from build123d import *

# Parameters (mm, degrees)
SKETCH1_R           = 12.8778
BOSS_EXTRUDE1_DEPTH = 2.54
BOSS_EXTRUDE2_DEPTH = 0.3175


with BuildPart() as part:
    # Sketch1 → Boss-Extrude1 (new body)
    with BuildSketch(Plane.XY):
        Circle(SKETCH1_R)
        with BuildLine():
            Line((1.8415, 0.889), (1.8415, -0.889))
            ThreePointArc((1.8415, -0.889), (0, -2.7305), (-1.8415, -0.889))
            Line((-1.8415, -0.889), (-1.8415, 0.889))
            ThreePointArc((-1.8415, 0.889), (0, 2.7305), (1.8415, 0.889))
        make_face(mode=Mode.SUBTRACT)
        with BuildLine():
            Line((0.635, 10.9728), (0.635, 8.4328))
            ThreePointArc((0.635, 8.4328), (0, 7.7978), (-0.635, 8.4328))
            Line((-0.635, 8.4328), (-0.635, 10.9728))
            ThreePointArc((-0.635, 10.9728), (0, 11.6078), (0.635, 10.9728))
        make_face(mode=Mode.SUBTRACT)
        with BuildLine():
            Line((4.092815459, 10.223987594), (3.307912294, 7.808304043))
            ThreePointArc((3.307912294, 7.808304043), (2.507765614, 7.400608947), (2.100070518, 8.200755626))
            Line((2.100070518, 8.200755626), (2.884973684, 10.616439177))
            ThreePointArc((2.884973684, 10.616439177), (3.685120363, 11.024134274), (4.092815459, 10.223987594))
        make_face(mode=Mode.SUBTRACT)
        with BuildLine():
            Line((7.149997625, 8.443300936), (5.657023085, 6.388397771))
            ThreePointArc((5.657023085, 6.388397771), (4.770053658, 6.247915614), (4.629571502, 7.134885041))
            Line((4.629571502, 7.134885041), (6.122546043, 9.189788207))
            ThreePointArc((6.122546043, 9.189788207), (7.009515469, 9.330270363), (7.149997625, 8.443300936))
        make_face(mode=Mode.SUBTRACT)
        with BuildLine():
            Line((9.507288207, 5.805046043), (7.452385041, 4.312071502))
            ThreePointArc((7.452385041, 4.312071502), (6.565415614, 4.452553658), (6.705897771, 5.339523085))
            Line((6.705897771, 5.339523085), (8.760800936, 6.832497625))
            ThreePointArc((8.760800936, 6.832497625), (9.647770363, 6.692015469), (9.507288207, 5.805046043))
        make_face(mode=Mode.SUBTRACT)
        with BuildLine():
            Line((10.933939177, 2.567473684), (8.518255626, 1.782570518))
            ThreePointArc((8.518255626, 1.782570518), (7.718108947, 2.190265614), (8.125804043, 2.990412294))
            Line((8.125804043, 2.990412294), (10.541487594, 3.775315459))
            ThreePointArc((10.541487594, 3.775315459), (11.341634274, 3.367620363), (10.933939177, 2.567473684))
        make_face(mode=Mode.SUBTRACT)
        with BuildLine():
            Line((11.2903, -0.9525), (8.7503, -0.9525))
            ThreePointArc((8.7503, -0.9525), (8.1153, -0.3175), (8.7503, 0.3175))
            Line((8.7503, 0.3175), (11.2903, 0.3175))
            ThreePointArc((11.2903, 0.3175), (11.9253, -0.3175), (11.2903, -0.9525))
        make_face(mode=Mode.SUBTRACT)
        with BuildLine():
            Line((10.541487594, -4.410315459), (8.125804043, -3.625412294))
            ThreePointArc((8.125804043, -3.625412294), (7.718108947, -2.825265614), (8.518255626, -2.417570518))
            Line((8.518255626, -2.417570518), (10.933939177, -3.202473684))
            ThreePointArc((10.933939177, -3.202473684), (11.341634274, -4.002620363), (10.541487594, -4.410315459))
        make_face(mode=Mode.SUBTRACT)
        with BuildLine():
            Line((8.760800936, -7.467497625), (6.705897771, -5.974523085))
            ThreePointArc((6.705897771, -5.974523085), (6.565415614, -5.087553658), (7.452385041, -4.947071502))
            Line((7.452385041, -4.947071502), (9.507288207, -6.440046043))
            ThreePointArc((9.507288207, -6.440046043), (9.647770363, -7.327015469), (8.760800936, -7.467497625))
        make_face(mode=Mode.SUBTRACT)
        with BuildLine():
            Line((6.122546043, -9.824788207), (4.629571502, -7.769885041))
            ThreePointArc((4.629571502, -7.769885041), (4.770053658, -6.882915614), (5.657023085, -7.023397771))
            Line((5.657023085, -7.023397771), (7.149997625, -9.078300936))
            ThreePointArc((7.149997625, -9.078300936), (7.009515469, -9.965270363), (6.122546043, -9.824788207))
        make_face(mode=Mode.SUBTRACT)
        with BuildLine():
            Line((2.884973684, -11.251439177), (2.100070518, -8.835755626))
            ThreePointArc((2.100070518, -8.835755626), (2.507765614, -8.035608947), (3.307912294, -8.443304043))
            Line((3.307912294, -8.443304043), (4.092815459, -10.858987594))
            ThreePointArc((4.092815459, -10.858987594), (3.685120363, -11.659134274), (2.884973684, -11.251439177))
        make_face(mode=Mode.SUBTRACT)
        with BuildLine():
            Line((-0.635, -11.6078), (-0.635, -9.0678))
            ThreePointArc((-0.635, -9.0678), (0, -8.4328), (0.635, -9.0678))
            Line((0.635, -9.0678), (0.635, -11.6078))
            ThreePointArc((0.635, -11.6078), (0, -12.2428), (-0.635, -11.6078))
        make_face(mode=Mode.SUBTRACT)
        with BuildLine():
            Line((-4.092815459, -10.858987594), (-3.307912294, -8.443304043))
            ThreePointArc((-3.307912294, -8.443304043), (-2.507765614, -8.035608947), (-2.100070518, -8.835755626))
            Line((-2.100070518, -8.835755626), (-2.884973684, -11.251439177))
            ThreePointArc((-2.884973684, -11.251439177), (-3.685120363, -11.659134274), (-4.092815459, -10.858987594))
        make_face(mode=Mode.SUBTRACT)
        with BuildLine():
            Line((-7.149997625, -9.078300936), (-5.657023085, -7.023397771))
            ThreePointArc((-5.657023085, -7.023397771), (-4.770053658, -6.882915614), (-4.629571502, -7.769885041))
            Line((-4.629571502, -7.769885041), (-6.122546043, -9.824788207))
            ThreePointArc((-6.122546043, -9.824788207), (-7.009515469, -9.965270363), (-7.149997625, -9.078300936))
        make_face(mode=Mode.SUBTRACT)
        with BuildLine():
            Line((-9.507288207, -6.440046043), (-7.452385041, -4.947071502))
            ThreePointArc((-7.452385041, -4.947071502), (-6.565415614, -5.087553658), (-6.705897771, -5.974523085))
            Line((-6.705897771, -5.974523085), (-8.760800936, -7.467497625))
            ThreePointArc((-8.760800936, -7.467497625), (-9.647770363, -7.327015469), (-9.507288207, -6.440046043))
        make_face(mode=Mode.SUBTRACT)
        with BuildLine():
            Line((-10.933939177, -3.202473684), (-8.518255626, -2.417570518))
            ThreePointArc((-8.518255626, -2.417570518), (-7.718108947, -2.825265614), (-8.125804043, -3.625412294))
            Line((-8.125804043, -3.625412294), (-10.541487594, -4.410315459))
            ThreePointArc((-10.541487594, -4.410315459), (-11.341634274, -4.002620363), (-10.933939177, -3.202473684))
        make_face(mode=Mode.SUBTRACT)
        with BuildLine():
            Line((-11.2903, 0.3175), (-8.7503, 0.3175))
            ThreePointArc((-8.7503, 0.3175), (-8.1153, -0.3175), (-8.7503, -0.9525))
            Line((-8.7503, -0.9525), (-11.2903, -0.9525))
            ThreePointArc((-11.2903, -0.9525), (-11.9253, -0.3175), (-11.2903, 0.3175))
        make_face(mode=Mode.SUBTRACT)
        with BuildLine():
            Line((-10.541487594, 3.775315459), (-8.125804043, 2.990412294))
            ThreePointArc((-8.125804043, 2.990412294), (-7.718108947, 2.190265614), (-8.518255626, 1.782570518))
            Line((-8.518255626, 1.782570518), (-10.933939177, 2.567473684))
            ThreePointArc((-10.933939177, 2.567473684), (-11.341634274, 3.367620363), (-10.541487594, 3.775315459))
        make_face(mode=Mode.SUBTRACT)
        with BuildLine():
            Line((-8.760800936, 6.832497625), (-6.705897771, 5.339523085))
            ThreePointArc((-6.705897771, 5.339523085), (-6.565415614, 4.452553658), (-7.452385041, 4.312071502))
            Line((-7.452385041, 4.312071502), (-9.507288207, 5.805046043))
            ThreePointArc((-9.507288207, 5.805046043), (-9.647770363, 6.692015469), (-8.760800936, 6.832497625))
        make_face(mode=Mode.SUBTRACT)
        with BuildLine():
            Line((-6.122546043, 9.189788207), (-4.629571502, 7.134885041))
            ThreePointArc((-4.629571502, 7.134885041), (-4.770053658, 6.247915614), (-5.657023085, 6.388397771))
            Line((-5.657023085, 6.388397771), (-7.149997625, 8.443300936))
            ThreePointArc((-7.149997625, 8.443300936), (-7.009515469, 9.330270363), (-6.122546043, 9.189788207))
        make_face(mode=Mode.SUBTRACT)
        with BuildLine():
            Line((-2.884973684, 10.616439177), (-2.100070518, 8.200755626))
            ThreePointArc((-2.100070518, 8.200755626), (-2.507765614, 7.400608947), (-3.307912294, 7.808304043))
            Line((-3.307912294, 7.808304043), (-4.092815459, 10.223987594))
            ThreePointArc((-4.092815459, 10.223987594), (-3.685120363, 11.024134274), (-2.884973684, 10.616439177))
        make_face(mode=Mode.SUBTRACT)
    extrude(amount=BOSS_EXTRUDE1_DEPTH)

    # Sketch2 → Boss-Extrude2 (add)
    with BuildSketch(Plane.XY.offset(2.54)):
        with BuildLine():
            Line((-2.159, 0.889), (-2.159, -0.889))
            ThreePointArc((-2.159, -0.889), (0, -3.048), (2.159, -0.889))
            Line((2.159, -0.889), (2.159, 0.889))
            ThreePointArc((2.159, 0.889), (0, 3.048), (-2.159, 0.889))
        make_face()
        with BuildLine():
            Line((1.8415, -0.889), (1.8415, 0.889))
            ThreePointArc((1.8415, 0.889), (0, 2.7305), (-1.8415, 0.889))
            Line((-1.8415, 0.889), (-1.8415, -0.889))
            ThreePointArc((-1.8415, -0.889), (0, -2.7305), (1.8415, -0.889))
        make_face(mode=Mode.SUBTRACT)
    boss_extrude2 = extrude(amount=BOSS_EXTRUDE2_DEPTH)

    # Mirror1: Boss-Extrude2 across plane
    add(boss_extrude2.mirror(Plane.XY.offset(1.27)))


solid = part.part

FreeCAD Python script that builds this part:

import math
import FreeCAD as App
import Part
import Sketcher
Q = App.Units.Quantity

doc = App.newDocument("Part")
params = doc.addObject("Spreadsheet::Sheet", "Params")
for row, (alias, value) in enumerate([
    ("sketch1_diameter", "1.014 in"),
    ("sketch1_width", "0.1 in"),
    ("sketch1_radius", "0.025 in"),
    ("sketch1_length", "0.1 in"),
    ("sketch1_height", "0.07 in"),
    ("pad1_length", "0.1 in"),
    ("sketch2_radius", "0.085 in"),
    ("sketch2_height", "0.07 in"),
    ("pad2_length", "0.0125 in"),
], start=1):
    params.set(f"A{row}", alias)
    params.set(f"B{row}", "=" + value)
    params.setAlias(f"B{row}", alias)

body = doc.addObject("PartDesign::Body", "Body")

sketch1 = doc.addObject("Sketcher::SketchObject", "Sketch")
body.addObject(sketch1)
sketch1.AttachmentSupport = (doc.XY_Plane, [""])
sketch1.MapMode = "FlatFace"
sketch1.addGeometry(Part.Circle(App.Vector(0, 0, 0), App.Vector(0, 0, 1), 12.9), False)
sketch1.addGeometry(Part.ArcOfCircle(Part.Circle(App.Vector(-3.5, -11.1, 0), App.Vector(0, 0, 1), 0.6), math.radians(162), math.radians(342)), False)
sketch1.addGeometry(Part.LineSegment(App.Vector(-4.1, -10.9, 0), App.Vector(-3.3, -8.4, 0)), False)
sketch1.addGeometry(Part.ArcOfCircle(Part.Circle(App.Vector(-2.7, -8.6, 0), App.Vector(0, 0, 1), 0.6), math.radians(-18), math.radians(162)), False)
sketch1.addGeometry(Part.LineSegment(App.Vector(-2.1, -8.8, 0), App.Vector(-2.9, -11.3, 0)), False)
sketch1.addGeometry(Part.ArcOfCircle(Part.Circle(App.Vector(0, -11.6, 0), App.Vector(0, 0, 1), 0.6), math.radians(180), math.radians(360)), False)
sketch1.addGeometry(Part.LineSegment(App.Vector(-0.6, -11.6, 0), App.Vector(-0.6, -9.1, 0)), False)
sketch1.addGeometry(Part.ArcOfCircle(Part.Circle(App.Vector(0, -9.1, 0), App.Vector(0, 0, 1), 0.6), math.radians(0), math.radians(180)), False)
sketch1.addGeometry(Part.LineSegment(App.Vector(0.6, -9.1, 0), App.Vector(0.6, -11.6, 0)), False)
sketch1.addGeometry(Part.ArcOfCircle(Part.Circle(App.Vector(-6.6, -9.5, 0), App.Vector(0, 0, 1), 0.6), math.radians(144), math.radians(324)), False)
sketch1.addGeometry(Part.LineSegment(App.Vector(-7.1, -9.1, 0), App.Vector(-5.7, -7, 0)), False)
sketch1.addGeometry(Part.ArcOfCircle(Part.Circle(App.Vector(-5.1, -7.4, 0), App.Vector(0, 0, 1), 0.6), math.radians(-36), math.radians(144)), False)
sketch1.addGeometry(Part.LineSegment(App.Vector(-4.6, -7.8, 0), App.Vector(-6.1, -9.8, 0)), False)
sketch1.addGeometry(Part.ArcOfCircle(Part.Circle(App.Vector(-10.7, -3.8, 0), App.Vector(0, 0, 1), 0.6), math.radians(108), math.radians(288)), False)
sketch1.addGeometry(Part.LineSegment(App.Vector(-10.9, -3.2, 0), App.Vector(-8.5, -2.4, 0)), False)
sketch1.addGeometry(Part.ArcOfCircle(Part.Circle(App.Vector(-8.3, -3, 0), App.Vector(0, 0, 1), 0.6), math.radians(-72), math.radians(108)), False)
sketch1.addGeometry(Part.LineSegment(App.Vector(-8.1, -3.6, 0), App.Vector(-10.5, -4.4, 0)), False)
sketch1.addGeometry(Part.ArcOfCircle(Part.Circle(App.Vector(-9.1, -7, 0), App.Vector(0, 0, 1), 0.6), math.radians(126), math.radians(306)), False)
sketch1.addGeometry(Part.LineSegment(App.Vector(-9.5, -6.4, 0), App.Vector(-7.5, -4.9, 0)), False)
sketch1.addGeometry(Part.ArcOfCircle(Part.Circle(App.Vector(-7.1, -5.5, 0), App.Vector(0, 0, 1), 0.6), math.radians(-54), math.radians(126)), False)
sketch1.addGeometry(Part.LineSegment(App.Vector(-6.7, -6, 0), App.Vector(-8.8, -7.5, 0)), False)
sketch1.addGeometry(Part.ArcOfCircle(Part.Circle(App.Vector(3.5, -11.1, 0), App.Vector(0, 0, 1), 0.6), math.radians(-162), math.radians(18)), False)
sketch1.addGeometry(Part.LineSegment(App.Vector(2.9, -11.3, 0), App.Vector(2.1, -8.8, 0)), False)
sketch1.addGeometry(Part.ArcOfCircle(Part.Circle(App.Vector(2.7, -8.6, 0), App.Vector(0, 0, 1), 0.6), math.radians(18), math.radians(198)), False)
sketch1.addGeometry(Part.LineSegment(App.Vector(3.3, -8.4, 0), App.Vector(4.1, -10.9, 0)), False)
sketch1.addGeometry(Part.ArcOfCircle(Part.Circle(App.Vector(6.6, -9.5, 0), App.Vector(0, 0, 1), 0.6), math.radians(-144), math.radians(36)), False)
sketch1.addGeometry(Part.LineSegment(App.Vector(6.1, -9.8, 0), App.Vector(4.6, -7.8, 0)), False)
sketch1.addGeometry(Part.ArcOfCircle(Part.Circle(App.Vector(5.1, -7.4, 0), App.Vector(0, 0, 1), 0.6), math.radians(36), math.radians(216)), False)
sketch1.addGeometry(Part.LineSegment(App.Vector(5.7, -7, 0), App.Vector(7.1, -9.1, 0)), False)
sketch1.addGeometry(Part.ArcOfCircle(Part.Circle(App.Vector(9.1, -7, 0), App.Vector(0, 0, 1), 0.6), math.radians(-126), math.radians(54)), False)
sketch1.addGeometry(Part.LineSegment(App.Vector(8.8, -7.5, 0), App.Vector(6.7, -6, 0)), False)
sketch1.addGeometry(Part.ArcOfCircle(Part.Circle(App.Vector(7.1, -5.5, 0), App.Vector(0, 0, 1), 0.6), math.radians(54), math.radians(234)), False)
sketch1.addGeometry(Part.LineSegment(App.Vector(7.5, -4.9, 0), App.Vector(9.5, -6.4, 0)), False)
sketch1.addGeometry(Part.ArcOfCircle(Part.Circle(App.Vector(10.7, -3.8, 0), App.Vector(0, 0, 1), 0.6), math.radians(-108), math.radians(72)), False)
sketch1.addGeometry(Part.LineSegment(App.Vector(10.5, -4.4, 0), App.Vector(8.1, -3.6, 0)), False)
sketch1.addGeometry(Part.ArcOfCircle(Part.Circle(App.Vector(8.3, -3, 0), App.Vector(0, 0, 1), 0.6), math.radians(72), math.radians(252)), False)
sketch1.addGeometry(Part.LineSegment(App.Vector(8.5, -2.4, 0), App.Vector(10.9, -3.2, 0)), False)
sketch1.addGeometry(Part.ArcOfCircle(Part.Circle(App.Vector(-11.3, -0.3, 0), App.Vector(0, 0, 1), 0.6), math.radians(90), math.radians(270)), False)
sketch1.addGeometry(Part.LineSegment(App.Vector(-11.3, 0.3, 0), App.Vector(-8.8, 0.3, 0)), False)
sketch1.addGeometry(Part.ArcOfCircle(Part.Circle(App.Vector(-8.8, -0.3, 0), App.Vector(0, 0, 1), 0.6), math.radians(-90), math.radians(90)), False)
sketch1.addGeometry(Part.LineSegment(App.Vector(-8.8, -1, 0), App.Vector(-11.3, -1, 0)), False)
sketch1.addGeometry(Part.ArcOfCircle(Part.Circle(App.Vector(-10.7, 3.2, 0), App.Vector(0, 0, 1), 0.6), math.radians(72), math.radians(252)), False)
sketch1.addGeometry(Part.LineSegment(App.Vector(-10.5, 3.8, 0), App.Vector(-8.1, 3, 0)), False)
sketch1.addGeometry(Part.ArcOfCircle(Part.Circle(App.Vector(-8.3, 2.4, 0), App.Vector(0, 0, 1), 0.6), math.radians(-108), math.radians(72)), False)
sketch1.addGeometry(Part.LineSegment(App.Vector(-8.5, 1.8, 0), App.Vector(-10.9, 2.6, 0)), False)
sketch1.addGeometry(Part.ArcOfCircle(Part.Circle(App.Vector(-9.1, 6.3, 0), App.Vector(0, 0, 1), 0.6), math.radians(54), math.radians(234)), False)
sketch1.addGeometry(Part.LineSegment(App.Vector(-8.8, 6.8, 0), App.Vector(-6.7, 5.3, 0)), False)
sketch1.addGeometry(Part.ArcOfCircle(Part.Circle(App.Vector(-7.1, 4.8, 0), App.Vector(0, 0, 1), 0.6), math.radians(-126), math.radians(54)), False)
sketch1.addGeometry(Part.LineSegment(App.Vector(-7.5, 4.3, 0), App.Vector(-9.5, 5.8, 0)), False)
sketch1.addGeometry(Part.ArcOfCircle(Part.Circle(App.Vector(0, 0.9, 0), App.Vector(0, 0, 1), 1.8), math.radians(0), math.radians(180)), False)
sketch1.addGeometry(Part.LineSegment(App.Vector(1.8, 0.9, 0), App.Vector(1.8, -0.9, 0)), False)
sketch1.addGeometry(Part.ArcOfCircle(Part.Circle(App.Vector(0, -0.9, 0), App.Vector(0, 0, 1), 1.8), math.radians(180), math.radians(360)), False)
sketch1.addGeometry(Part.LineSegment(App.Vector(-1.8, -0.9, 0), App.Vector(-1.8, 0.9, 0)), False)
sketch1.addGeometry(Part.ArcOfCircle(Part.Circle(App.Vector(-6.6, 8.8, 0), App.Vector(0, 0, 1), 0.6), math.radians(36), math.radians(216)), False)
sketch1.addGeometry(Part.LineSegment(App.Vector(-6.1, 9.2, 0), App.Vector(-4.6, 7.1, 0)), False)
sketch1.addGeometry(Part.ArcOfCircle(Part.Circle(App.Vector(-5.1, 6.8, 0), App.Vector(0, 0, 1), 0.6), math.radians(-144), math.radians(36)), False)
sketch1.addGeometry(Part.LineSegment(App.Vector(-5.7, 6.4, 0), App.Vector(-7.1, 8.4, 0)), False)
sketch1.addGeometry(Part.ArcOfCircle(Part.Circle(App.Vector(-3.5, 10.4, 0), App.Vector(0, 0, 1), 0.6), math.radians(18), math.radians(198)), False)
sketch1.addGeometry(Part.LineSegment(App.Vector(-2.9, 10.6, 0), App.Vector(-2.1, 8.2, 0)), False)
sketch1.addGeometry(Part.ArcOfCircle(Part.Circle(App.Vector(-2.7, 8, 0), App.Vector(0, 0, 1), 0.6), math.radians(-162), math.radians(18)), False)
sketch1.addGeometry(Part.LineSegment(App.Vector(-3.3, 7.8, 0), App.Vector(-4.1, 10.2, 0)), False)
sketch1.addGeometry(Part.ArcOfCircle(Part.Circle(App.Vector(0, 11, 0), App.Vector(0, 0, 1), 0.6), math.radians(0), math.radians(180)), False)
sketch1.addGeometry(Part.LineSegment(App.Vector(0.6, 11, 0), App.Vector(0.6, 8.4, 0)), False)
sketch1.addGeometry(Part.ArcOfCircle(Part.Circle(App.Vector(0, 8.4, 0), App.Vector(0, 0, 1), 0.6), math.radians(180), math.radians(360)), False)
sketch1.addGeometry(Part.LineSegment(App.Vector(-0.6, 8.4, 0), App.Vector(-0.6, 11, 0)), False)
sketch1.addGeometry(Part.ArcOfCircle(Part.Circle(App.Vector(11.3, -0.3, 0), App.Vector(0, 0, 1), 0.6), math.radians(-90), math.radians(90)), False)
sketch1.addGeometry(Part.LineSegment(App.Vector(11.3, -1, 0), App.Vector(8.8, -1, 0)), False)
sketch1.addGeometry(Part.ArcOfCircle(Part.Circle(App.Vector(8.8, -0.3, 0), App.Vector(0, 0, 1), 0.6), math.radians(90), math.radians(270)), False)
sketch1.addGeometry(Part.LineSegment(App.Vector(8.8, 0.3, 0), App.Vector(11.3, 0.3, 0)), False)
sketch1.addGeometry(Part.ArcOfCircle(Part.Circle(App.Vector(9.1, 6.3, 0), App.Vector(0, 0, 1), 0.6), math.radians(-54), math.radians(126)), False)
sketch1.addGeometry(Part.LineSegment(App.Vector(9.5, 5.8, 0), App.Vector(7.5, 4.3, 0)), False)
sketch1.addGeometry(Part.ArcOfCircle(Part.Circle(App.Vector(7.1, 4.8, 0), App.Vector(0, 0, 1), 0.6), math.radians(126), math.radians(306)), False)
sketch1.addGeometry(Part.LineSegment(App.Vector(6.7, 5.3, 0), App.Vector(8.8, 6.8, 0)), False)
sketch1.addGeometry(Part.ArcOfCircle(Part.Circle(App.Vector(10.7, 3.2, 0), App.Vector(0, 0, 1), 0.6), math.radians(-72), math.radians(108)), False)
sketch1.addGeometry(Part.LineSegment(App.Vector(10.9, 2.6, 0), App.Vector(8.5, 1.8, 0)), False)
sketch1.addGeometry(Part.ArcOfCircle(Part.Circle(App.Vector(8.3, 2.4, 0), App.Vector(0, 0, 1), 0.6), math.radians(108), math.radians(288)), False)
sketch1.addGeometry(Part.LineSegment(App.Vector(8.1, 3, 0), App.Vector(10.5, 3.8, 0)), False)
sketch1.addGeometry(Part.ArcOfCircle(Part.Circle(App.Vector(6.6, 8.8, 0), App.Vector(0, 0, 1), 0.6), math.radians(-36), math.radians(144)), False)
sketch1.addGeometry(Part.LineSegment(App.Vector(7.1, 8.4, 0), App.Vector(5.7, 6.4, 0)), False)
sketch1.addGeometry(Part.ArcOfCircle(Part.Circle(App.Vector(5.1, 6.8, 0), App.Vector(0, 0, 1), 0.6), math.radians(144), math.radians(324)), False)
sketch1.addGeometry(Part.LineSegment(App.Vector(4.6, 7.1, 0), App.Vector(6.1, 9.2, 0)), False)
sketch1.addGeometry(Part.ArcOfCircle(Part.Circle(App.Vector(3.5, 10.4, 0), App.Vector(0, 0, 1), 0.6), math.radians(-18), math.radians(162)), False)
sketch1.addGeometry(Part.LineSegment(App.Vector(4.1, 10.2, 0), App.Vector(3.3, 7.8, 0)), False)
sketch1.addGeometry(Part.ArcOfCircle(Part.Circle(App.Vector(2.7, 8, 0), App.Vector(0, 0, 1), 0.6), math.radians(162), math.radians(342)), False)
sketch1.addGeometry(Part.LineSegment(App.Vector(2.1, 8.2, 0), App.Vector(2.9, 10.6, 0)), False)
sketch1.addConstraint(Sketcher.Constraint("Tangent", 1, 1, 2, 1))
sketch1.addConstraint(Sketcher.Constraint("Tangent", 2, 2, 3, 2))
sketch1.addConstraint(Sketcher.Constraint("Tangent", 3, 1, 4, 1))
sketch1.addConstraint(Sketcher.Constraint("Tangent", 4, 2, 1, 2))
sketch1.addConstraint(Sketcher.Constraint("Tangent", 5, 1, 6, 1))
sketch1.addConstraint(Sketcher.Constraint("Tangent", 6, 2, 7, 2))
sketch1.addConstraint(Sketcher.Constraint("Tangent", 7, 1, 8, 1))
sketch1.addConstraint(Sketcher.Constraint("Tangent", 8, 2, 5, 2))
sketch1.addConstraint(Sketcher.Constraint("Tangent", 9, 1, 10, 1))
sketch1.addConstraint(Sketcher.Constraint("Tangent", 10, 2, 11, 2))
sketch1.addConstraint(Sketcher.Constraint("Tangent", 11, 1, 12, 1))
sketch1.addConstraint(Sketcher.Constraint("Tangent", 12, 2, 9, 2))
sketch1.addConstraint(Sketcher.Constraint("Tangent", 13, 1, 14, 1))
sketch1.addConstraint(Sketcher.Constraint("Tangent", 14, 2, 15, 2))
sketch1.addConstraint(Sketcher.Constraint("Tangent", 15, 1, 16, 1))
sketch1.addConstraint(Sketcher.Constraint("Tangent", 16, 2, 13, 2))
sketch1.addConstraint(Sketcher.Constraint("Tangent", 17, 1, 18, 1))
sketch1.addConstraint(Sketcher.Constraint("Tangent", 18, 2, 19, 2))
sketch1.addConstraint(Sketcher.Constraint("Tangent", 19, 1, 20, 1))
sketch1.addConstraint(Sketcher.Constraint("Tangent", 20, 2, 17, 2))
sketch1.addConstraint(Sketcher.Constraint("Tangent", 21, 1, 22, 1))
sketch1.addConstraint(Sketcher.Constraint("Tangent", 22, 2, 23, 2))
sketch1.addConstraint(Sketcher.Constraint("Tangent", 23, 1, 24, 1))
sketch1.addConstraint(Sketcher.Constraint("Tangent", 24, 2, 21, 2))
sketch1.addConstraint(Sketcher.Constraint("Tangent", 25, 1, 26, 1))
sketch1.addConstraint(Sketcher.Constraint("Tangent", 26, 2, 27, 2))
sketch1.addConstraint(Sketcher.Constraint("Tangent", 27, 1, 28, 1))
sketch1.addConstraint(Sketcher.Constraint("Tangent", 28, 2, 25, 2))
sketch1.addConstraint(Sketcher.Constraint("Tangent", 29, 1, 30, 1))
sketch1.addConstraint(Sketcher.Constraint("Tangent", 30, 2, 31, 2))
sketch1.addConstraint(Sketcher.Constraint("Tangent", 31, 1, 32, 1))
sketch1.addConstraint(Sketcher.Constraint("Tangent", 32, 2, 29, 2))
sketch1.addConstraint(Sketcher.Constraint("Tangent", 33, 1, 34, 1))
sketch1.addConstraint(Sketcher.Constraint("Tangent", 34, 2, 35, 2))
sketch1.addConstraint(Sketcher.Constraint("Tangent", 35, 1, 36, 1))
sketch1.addConstraint(Sketcher.Constraint("Tangent", 36, 2, 33, 2))
sketch1.addConstraint(Sketcher.Constraint("Tangent", 37, 1, 38, 1))
sketch1.addConstraint(Sketcher.Constraint("Tangent", 38, 2, 39, 2))
sketch1.addConstraint(Sketcher.Constraint("Tangent", 39, 1, 40, 1))
sketch1.addConstraint(Sketcher.Constraint("Tangent", 40, 2, 37, 2))
sketch1.addConstraint(Sketcher.Constraint("Tangent", 41, 1, 42, 1))
sketch1.addConstraint(Sketcher.Constraint("Tangent", 42, 2, 43, 2))
sketch1.addConstraint(Sketcher.Constraint("Tangent", 43, 1, 44, 1))
sketch1.addConstraint(Sketcher.Constraint("Tangent", 44, 2, 41, 2))
sketch1.addConstraint(Sketcher.Constraint("Tangent", 45, 1, 46, 1))
sketch1.addConstraint(Sketcher.Constraint("Tangent", 46, 2, 47, 2))
sketch1.addConstraint(Sketcher.Constraint("Tangent", 47, 1, 48, 1))
sketch1.addConstraint(Sketcher.Constraint("Tangent", 48, 2, 45, 2))
sketch1.addConstraint(Sketcher.Constraint("Tangent", 49, 1, 50, 1))
sketch1.addConstraint(Sketcher.Constraint("Tangent", 50, 2, 51, 2))
sketch1.addConstraint(Sketcher.Constraint("Tangent", 51, 1, 52, 1))
sketch1.addConstraint(Sketcher.Constraint("Tangent", 52, 2, 49, 2))
sketch1.addConstraint(Sketcher.Constraint("Tangent", 53, 1, 54, 1))
sketch1.addConstraint(Sketcher.Constraint("Tangent", 54, 2, 55, 2))
sketch1.addConstraint(Sketcher.Constraint("Tangent", 55, 1, 56, 1))
sketch1.addConstraint(Sketcher.Constraint("Tangent", 56, 2, 53, 2))
sketch1.addConstraint(Sketcher.Constraint("Tangent", 57, 1, 58, 1))
sketch1.addConstraint(Sketcher.Constraint("Tangent", 58, 2, 59, 2))
sketch1.addConstraint(Sketcher.Constraint("Tangent", 59, 1, 60, 1))
sketch1.addConstraint(Sketcher.Constraint("Tangent", 60, 2, 57, 2))
sketch1.addConstraint(Sketcher.Constraint("Tangent", 61, 1, 62, 1))
sketch1.addConstraint(Sketcher.Constraint("Tangent", 62, 2, 63, 2))
sketch1.addConstraint(Sketcher.Constraint("Tangent", 63, 1, 64, 1))
sketch1.addConstraint(Sketcher.Constraint("Tangent", 64, 2, 61, 2))
sketch1.addConstraint(Sketcher.Constraint("Tangent", 65, 1, 66, 1))
sketch1.addConstraint(Sketcher.Constraint("Tangent", 66, 2, 67, 2))
sketch1.addConstraint(Sketcher.Constraint("Tangent", 67, 1, 68, 1))
sketch1.addConstraint(Sketcher.Constraint("Tangent", 68, 2, 65, 2))
sketch1.addConstraint(Sketcher.Constraint("Tangent", 69, 1, 70, 1))
sketch1.addConstraint(Sketcher.Constraint("Tangent", 70, 2, 71, 2))
sketch1.addConstraint(Sketcher.Constraint("Tangent", 71, 1, 72, 1))
sketch1.addConstraint(Sketcher.Constraint("Tangent", 72, 2, 69, 2))
sketch1.addConstraint(Sketcher.Constraint("Tangent", 73, 1, 74, 1))
sketch1.addConstraint(Sketcher.Constraint("Tangent", 74, 2, 75, 2))
sketch1.addConstraint(Sketcher.Constraint("Tangent", 75, 1, 76, 1))
sketch1.addConstraint(Sketcher.Constraint("Tangent", 76, 2, 73, 2))
sketch1.addConstraint(Sketcher.Constraint("Tangent", 77, 1, 78, 1))
sketch1.addConstraint(Sketcher.Constraint("Tangent", 78, 2, 79, 2))
sketch1.addConstraint(Sketcher.Constraint("Tangent", 79, 1, 80, 1))
sketch1.addConstraint(Sketcher.Constraint("Tangent", 80, 2, 77, 2))
sketch1.addConstraint(Sketcher.Constraint("Tangent", 81, 1, 82, 1))
sketch1.addConstraint(Sketcher.Constraint("Tangent", 82, 2, 83, 2))
sketch1.addConstraint(Sketcher.Constraint("Tangent", 83, 1, 84, 1))
sketch1.addConstraint(Sketcher.Constraint("Tangent", 84, 2, 81, 2))
sketch1.addConstraint(Sketcher.Constraint("Vertical", 6))
sketch1.addConstraint(Sketcher.Constraint("Vertical", 8))
sketch1.addConstraint(Sketcher.Constraint("Horizontal", 38))
sketch1.addConstraint(Sketcher.Constraint("Horizontal", 40))
sketch1.addConstraint(Sketcher.Constraint("Vertical", 50))
sketch1.addConstraint(Sketcher.Constraint("Vertical", 52))
sketch1.addConstraint(Sketcher.Constraint("Vertical", 62))
sketch1.addConstraint(Sketcher.Constraint("Vertical", 64))
sketch1.addConstraint(Sketcher.Constraint("Horizontal", 66))
sketch1.addConstraint(Sketcher.Constraint("Horizontal", 68))
sketch1.addConstraint(Sketcher.Constraint("Coincident", 0, 3, -1, 1))
sketch1.addConstraint(Sketcher.Constraint("Equal", 1, 3))
sketch1.addConstraint(Sketcher.Constraint("Equal", 3, 5))
sketch1.addConstraint(Sketcher.Constraint("Equal", 7, 9))
sketch1.addConstraint(Sketcher.Constraint("Equal", 9, 11))
sketch1.addConstraint(Sketcher.Constraint("Equal", 11, 13))
sketch1.addConstraint(Sketcher.Constraint("Equal", 13, 15))
sketch1.addConstraint(Sketcher.Constraint("Equal", 15, 17))
sketch1.addConstraint(Sketcher.Constraint("Equal", 17, 19))
sketch1.addConstraint(Sketcher.Constraint("Equal", 19, 21))
sketch1.addConstraint(Sketcher.Constraint("Equal", 21, 23))
sketch1.addConstraint(Sketcher.Constraint("Equal", 23, 25))
sketch1.addConstraint(Sketcher.Constraint("Equal", 25, 27))
sketch1.addConstraint(Sketcher.Constraint("Equal", 27, 29))
sketch1.addConstraint(Sketcher.Constraint("Equal", 29, 31))
sketch1.addConstraint(Sketcher.Constraint("Equal", 31, 33))
sketch1.addConstraint(Sketcher.Constraint("Equal", 33, 35))
sketch1.addConstraint(Sketcher.Constraint("Equal", 35, 37))
sketch1.addConstraint(Sketcher.Constraint("Equal", 39, 41))
sketch1.addConstraint(Sketcher.Constraint("Equal", 41, 43))
sketch1.addConstraint(Sketcher.Constraint("Equal", 43, 45))
sketch1.addConstraint(Sketcher.Constraint("Equal", 45, 47))
sketch1.addConstraint(Sketcher.Constraint("Equal", 47, 53))
sketch1.addConstraint(Sketcher.Constraint("Equal", 53, 55))
sketch1.addConstraint(Sketcher.Constraint("Equal", 55, 57))
sketch1.addConstraint(Sketcher.Constraint("Equal", 57, 59))
sketch1.addConstraint(Sketcher.Constraint("Equal", 59, 61))
sketch1.addConstraint(Sketcher.Constraint("Equal", 63, 65))
sketch1.addConstraint(Sketcher.Constraint("Equal", 67, 69))
sketch1.addConstraint(Sketcher.Constraint("Equal", 69, 71))
sketch1.addConstraint(Sketcher.Constraint("Equal", 71, 73))
sketch1.addConstraint(Sketcher.Constraint("Equal", 73, 75))
sketch1.addConstraint(Sketcher.Constraint("Equal", 75, 77))
sketch1.addConstraint(Sketcher.Constraint("Equal", 77, 79))
sketch1.addConstraint(Sketcher.Constraint("Equal", 79, 81))
sketch1.addConstraint(Sketcher.Constraint("Equal", 81, 83))
sketch1.addConstraint(Sketcher.Constraint("Symmetric", 49, 3, 51, 3, -1, 1))
sketch1.addConstraint(Sketcher.Constraint("Symmetric", 1, 3, 21, 3, -2))
sketch1.addConstraint(Sketcher.Constraint("Symmetric", 3, 3, 23, 3, -2))
sketch1.addConstraint(Sketcher.Constraint("Symmetric", 9, 3, 25, 3, -2))
sketch1.addConstraint(Sketcher.Constraint("Symmetric", 11, 3, 27, 3, -2))
sketch1.addConstraint(Sketcher.Constraint("Symmetric", 17, 3, 29, 3, -2))
sketch1.addConstraint(Sketcher.Constraint("Symmetric", 19, 3, 31, 3, -2))
sketch1.addConstraint(Sketcher.Constraint("Symmetric", 13, 3, 33, 3, -2))
sketch1.addConstraint(Sketcher.Constraint("Symmetric", 15, 3, 35, 3, -2))
sketch1.addConstraint(Sketcher.Constraint("Symmetric", 37, 3, 65, 3, -2))
sketch1.addConstraint(Sketcher.Constraint("Symmetric", 45, 3, 69, 3, -2))
sketch1.addConstraint(Sketcher.Constraint("Symmetric", 47, 3, 71, 3, -2))
sketch1.addConstraint(Sketcher.Constraint("Symmetric", 41, 3, 73, 3, -2))
sketch1.addConstraint(Sketcher.Constraint("Symmetric", 43, 3, 75, 3, -2))
sketch1.addConstraint(Sketcher.Constraint("Symmetric", 53, 3, 77, 3, -2))
sketch1.addConstraint(Sketcher.Constraint("Symmetric", 55, 3, 79, 3, -2))
sketch1.addConstraint(Sketcher.Constraint("Symmetric", 57, 3, 81, 3, -2))
sketch1.addConstraint(Sketcher.Constraint("Symmetric", 59, 3, 83, 3, -2))
sketch1.addConstraint(Sketcher.Constraint("PointOnObject", 5, 3, -2))
sketch1.addConstraint(Sketcher.Constraint("PointOnObject", 61, 3, -2))
sketch1.addConstraint(Sketcher.Constraint("Perpendicular", 16, 22))
sketch1.addConstraint(Sketcher.Constraint("Perpendicular", 20, 26))
sketch1.addConstraint(Sketcher.Constraint("Parallel", 36, 42))
sketch1.addConstraint(Sketcher.Constraint("Parallel", 32, 46))
sketch1.addConstraint(Sketcher.Constraint("Parallel", 28, 54))
sketch1.addConstraint(Sketcher.Constraint("Parallel", 24, 58))
sketch1.addConstraint(Sketcher.Constraint("Vertical", 13, 3, 41, 3))
sketch1.addConstraint(Sketcher.Constraint("Vertical", 15, 3, 43, 3))
sketch1.addConstraint(Sketcher.Constraint("Vertical", 17, 3, 45, 3))
sketch1.addConstraint(Sketcher.Constraint("Vertical", 19, 3, 47, 3))
sketch1.addConstraint(Sketcher.Constraint("Vertical", 9, 3, 53, 3))
sketch1.addConstraint(Sketcher.Constraint("Vertical", 11, 3, 55, 3))
sketch1.addConstraint(Sketcher.Constraint("Vertical", 1, 3, 57, 3))
sketch1.addConstraint(Sketcher.Constraint("Vertical", 3, 3, 59, 3))
sketch1.addConstraint(Sketcher.Constraint("Equal", 40, 66))
sketch1.addConstraint(Sketcher.Constraint("Equal", 68, 6))
sketch1.addConstraint(Sketcher.Constraint("Equal", 8, 62))
sketch1.addConstraint(Sketcher.Constraint("Equal", 4, 10))
sketch1.addConstraint(Sketcher.Constraint("Equal", 12, 14))
sketch1.addConstraint(Sketcher.Constraint("Equal", 16, 18))
sketch1.addConstraint(Sketcher.Constraint("Diameter", 0, Q("1.014 in")))
sketch1.addConstraint(Sketcher.Constraint("DistanceX", 38, 1, 38, 2, Q("0.1 in")))
sketch1.addConstraint(Sketcher.Constraint("Angle", 2, Q("72 deg")))
sketch1.addConstraint(Sketcher.Constraint("Angle", 10, Q("54 deg")))
sketch1.addConstraint(Sketcher.Constraint("Radius", 1, Q("0.025 in")))
sketch1.addConstraint(Sketcher.Constraint("Distance", 2, Q("0.1 in")))
sketch1.addConstraint(Sketcher.Constraint("DistanceY", 50, 2, 50, 1, Q("0.07 in")))
sketch1.addConstraint(Sketcher.Constraint("Radius", 49, Q("0.0725 in")))
sketch1.addConstraint(Sketcher.Constraint("DistanceY", 5, 3, -1, 1, Q("0.457 in")))
sketch1.addConstraint(Sketcher.Constraint("DistanceY", -1, 1, 61, 3, Q("0.432 in")))
sketch1.addConstraint(Sketcher.Constraint("DistanceX", 37, 3, -1, 1, Q("0.4445 in")))
sketch1.addConstraint(Sketcher.Constraint("DistanceY", 37, 3, -1, 1, Q("0.0125 in")))
sketch1.addConstraint(Sketcher.Constraint("DistanceY", 9, 1, -1, 1, Q("9.078301 mm")))
sketch1.addConstraint(Sketcher.Constraint("DistanceX", 20, 2, -1, 1, Q("8.760801 mm")))
sketch1.addConstraint(Sketcher.Constraint("DistanceY", -1, 1, 56, 2, Q("8.443301 mm")))
sketch1.addConstraint(Sketcher.Constraint("DistanceX", 3, 3, -1, 1, Q("2.703991 mm")))
sketch1.addConstraint(Sketcher.Constraint("DistanceY", 3, 3, -1, 1, Q("8.63953 mm")))
sketch1.addConstraint(Sketcher.Constraint("DistanceX", 9, 3, -1, 1, Q("6.636272 mm")))
sketch1.addConstraint(Sketcher.Constraint("DistanceX", 15, 3, -1, 1, Q("8.32203 mm")))
sketch1.addConstraint(Sketcher.Constraint("DistanceY", 15, 3, -1, 1, Q("3.021491 mm")))
sketch1.addConstraint(Sketcher.Constraint("DistanceY", 17, 3, -1, 1, Q("6.953772 mm")))
sketch1.addConstraint(Sketcher.Constraint("DistanceY", -1, 1, 43, 3, Q("2.386491 mm")))
sketch1.addConstraint(Sketcher.Constraint("DistanceY", -1, 1, 45, 3, Q("6.318772 mm")))
sketch1.addConstraint(Sketcher.Constraint("DistanceY", -1, 1, 59, 3, Q("8.00453 mm")))
sketch1.setExpression("Constraints[170]", "Params.sketch1_diameter")
sketch1.setExpression("Constraints[171]", "Params.sketch1_width")
sketch1.setExpression("Constraints[174]", "Params.sketch1_radius")
sketch1.setExpression("Constraints[175]", "Params.sketch1_length")
sketch1.setExpression("Constraints[176]", "Params.sketch1_height")
pad1 = doc.addObject("PartDesign::Pad", "Pad")
body.addObject(pad1)
pad1.Profile = sketch1
pad1.setExpression("Length", "Params.pad1_length")

sketch2 = doc.addObject("Sketcher::SketchObject", "Sketch001")
body.addObject(sketch2)
sketch2.AttachmentSupport = (doc.XY_Plane, [""])
sketch2.MapMode = "FlatFace"
sketch2.AttachmentOffset = App.Placement(App.Vector(0, 0, 0.1 * 25.4), App.Rotation())
sketch2.addGeometry(Part.LineSegment(App.Vector(-2.2, 0.9, 0), App.Vector(-2.2, -0.9, 0)), False)
sketch2.addGeometry(Part.ArcOfCircle(Part.Circle(App.Vector(0, -0.9, 0), App.Vector(0, 0, 1), 2.2), math.radians(180), math.radians(360)), False)
sketch2.addGeometry(Part.LineSegment(App.Vector(2.2, -0.9, 0), App.Vector(2.2, 0.9, 0)), False)
sketch2.addGeometry(Part.ArcOfCircle(Part.Circle(App.Vector(0, 0.9, 0), App.Vector(0, 0, 1), 2.2), math.radians(0), math.radians(180)), False)
sketch2.addGeometry(Part.LineSegment(App.Vector(1.8, 0.9, 0), App.Vector(1.8, -0.9, 0)), False)
sketch2.addGeometry(Part.ArcOfCircle(Part.Circle(App.Vector(0, -0.9, 0), App.Vector(0, 0, 1), 1.8), math.radians(180), math.radians(360)), False)
sketch2.addGeometry(Part.LineSegment(App.Vector(-1.8, -0.9, 0), App.Vector(-1.8, 0.9, 0)), False)
sketch2.addGeometry(Part.ArcOfCircle(Part.Circle(App.Vector(0, 0.9, 0), App.Vector(0, 0, 1), 1.8), math.radians(0), math.radians(180)), False)
sketch2.addConstraint(Sketcher.Constraint("Tangent", 0, 2, 1, 1))
sketch2.addConstraint(Sketcher.Constraint("Tangent", 1, 2, 2, 1))
sketch2.addConstraint(Sketcher.Constraint("Tangent", 2, 2, 3, 1))
sketch2.addConstraint(Sketcher.Constraint("Tangent", 3, 2, 0, 1))
sketch2.addConstraint(Sketcher.Constraint("Tangent", 4, 2, 5, 2))
sketch2.addConstraint(Sketcher.Constraint("Tangent", 5, 1, 6, 1))
sketch2.addConstraint(Sketcher.Constraint("Tangent", 6, 2, 7, 2))
sketch2.addConstraint(Sketcher.Constraint("Tangent", 7, 1, 4, 1))
sketch2.addConstraint(Sketcher.Constraint("Vertical", 0))
sketch2.addConstraint(Sketcher.Constraint("Vertical", 2))
sketch2.addConstraint(Sketcher.Constraint("Vertical", 4))
sketch2.addConstraint(Sketcher.Constraint("Vertical", 6))
sketch2.addConstraint(Sketcher.Constraint("Coincident", 5, 3, 1, 3))
sketch2.addConstraint(Sketcher.Constraint("Symmetric", 1, 3, 3, 3, -1, 1))
sketch2.addConstraint(Sketcher.Constraint("Horizontal", 7, 3, 2, 2))
sketch2.addConstraint(Sketcher.Constraint("Radius", 1, Q("0.085 in")))
sketch2.addConstraint(Sketcher.Constraint("DistanceY", 0, 2, 0, 1, Q("0.07 in")))
sketch2.addConstraint(Sketcher.Constraint("Radius", 5, Q("0.0725 in")))
sketch2.setExpression("Constraints[15]", "Params.sketch2_radius")
sketch2.setExpression("Constraints[16]", "Params.sketch2_height")
pad2 = doc.addObject("PartDesign::Pad", "Pad001")
body.addObject(pad2)
pad2.Profile = sketch2
pad2.setExpression("Length", "Params.pad2_length")
doc.recompute()

datumplane = doc.addObject("PartDesign::Plane", "DatumPlane")
body.addObject(datumplane)
datumplane.AttachmentSupport = (doc.XY_Plane, [""])
datumplane.MapMode = "FlatFace"
datumplane.AttachmentOffset = App.Placement(App.Vector(0, 0, 0.05 * 25.4), App.Rotation())
mirrored = doc.addObject("PartDesign::Mirrored", "Mirrored")
body.addObject(mirrored)
mirrored.Originals = [pad2]
mirrored.MirrorPlane = (datumplane, [""])
body.Tip = mirrored

doc.recompute()
